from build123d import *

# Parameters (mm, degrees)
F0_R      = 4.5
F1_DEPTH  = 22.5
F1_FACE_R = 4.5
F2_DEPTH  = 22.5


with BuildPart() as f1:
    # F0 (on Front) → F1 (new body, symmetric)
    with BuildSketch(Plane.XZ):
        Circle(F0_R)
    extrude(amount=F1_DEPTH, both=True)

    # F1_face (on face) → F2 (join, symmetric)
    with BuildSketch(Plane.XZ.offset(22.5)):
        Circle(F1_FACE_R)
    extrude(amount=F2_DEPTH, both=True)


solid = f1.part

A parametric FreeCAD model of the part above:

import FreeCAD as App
import Part
import Sketcher
Q = App.Units.Quantity

doc = App.newDocument("Part")
body = doc.addObject("PartDesign::Body", "Body")

sketch1 = body.newObject("Sketcher::SketchObject", "Sketch")
sketch1.AttachmentSupport = (doc.getObject("XZ_Plane"), [""])
sketch1.MapMode = "FlatFace"
sketch1.addGeometry(Part.Circle(App.Vector(0, 0, 0), App.Vector(0, 0, 1), 4.5), False)
sketch1.addConstraint(Sketcher.Constraint("Coincident", 0, 3, -1, 1))
sketch1.addConstraint(Sketcher.Constraint("Diameter", 0, Q("9 mm")))
pad1 = body.newObject("PartDesign::Pad", "Pad")
pad1.Profile = sketch1
pad1.Length = 45
pad1.Midplane = True

sketch2 = body.newObject("Sketcher::SketchObject", "Sketch001")
sketch2.AttachmentSupport = (doc.getObject("XZ_Plane"), [""])
sketch2.MapMode = "FlatFace"
sketch2.AttachmentOffset = App.Placement(App.Vector(0, 0, 22.5), App.Rotation())
sketch2.addGeometry(Part.Circle(App.Vector(0, 0, 0), App.Vector(0, 0, 1), 4.5), False)
sketch2.addConstraint(Sketcher.Constraint("Coincident", 0, 3, -1, 1))
sketch2.addConstraint(Sketcher.Constraint("Diameter", 0, Q("9 mm")))
pad2 = body.newObject("PartDesign::Pad", "Pad001")
pad2.Profile = sketch2
pad2.Length = 45
pad2.Midplane = True

doc.recompute()
